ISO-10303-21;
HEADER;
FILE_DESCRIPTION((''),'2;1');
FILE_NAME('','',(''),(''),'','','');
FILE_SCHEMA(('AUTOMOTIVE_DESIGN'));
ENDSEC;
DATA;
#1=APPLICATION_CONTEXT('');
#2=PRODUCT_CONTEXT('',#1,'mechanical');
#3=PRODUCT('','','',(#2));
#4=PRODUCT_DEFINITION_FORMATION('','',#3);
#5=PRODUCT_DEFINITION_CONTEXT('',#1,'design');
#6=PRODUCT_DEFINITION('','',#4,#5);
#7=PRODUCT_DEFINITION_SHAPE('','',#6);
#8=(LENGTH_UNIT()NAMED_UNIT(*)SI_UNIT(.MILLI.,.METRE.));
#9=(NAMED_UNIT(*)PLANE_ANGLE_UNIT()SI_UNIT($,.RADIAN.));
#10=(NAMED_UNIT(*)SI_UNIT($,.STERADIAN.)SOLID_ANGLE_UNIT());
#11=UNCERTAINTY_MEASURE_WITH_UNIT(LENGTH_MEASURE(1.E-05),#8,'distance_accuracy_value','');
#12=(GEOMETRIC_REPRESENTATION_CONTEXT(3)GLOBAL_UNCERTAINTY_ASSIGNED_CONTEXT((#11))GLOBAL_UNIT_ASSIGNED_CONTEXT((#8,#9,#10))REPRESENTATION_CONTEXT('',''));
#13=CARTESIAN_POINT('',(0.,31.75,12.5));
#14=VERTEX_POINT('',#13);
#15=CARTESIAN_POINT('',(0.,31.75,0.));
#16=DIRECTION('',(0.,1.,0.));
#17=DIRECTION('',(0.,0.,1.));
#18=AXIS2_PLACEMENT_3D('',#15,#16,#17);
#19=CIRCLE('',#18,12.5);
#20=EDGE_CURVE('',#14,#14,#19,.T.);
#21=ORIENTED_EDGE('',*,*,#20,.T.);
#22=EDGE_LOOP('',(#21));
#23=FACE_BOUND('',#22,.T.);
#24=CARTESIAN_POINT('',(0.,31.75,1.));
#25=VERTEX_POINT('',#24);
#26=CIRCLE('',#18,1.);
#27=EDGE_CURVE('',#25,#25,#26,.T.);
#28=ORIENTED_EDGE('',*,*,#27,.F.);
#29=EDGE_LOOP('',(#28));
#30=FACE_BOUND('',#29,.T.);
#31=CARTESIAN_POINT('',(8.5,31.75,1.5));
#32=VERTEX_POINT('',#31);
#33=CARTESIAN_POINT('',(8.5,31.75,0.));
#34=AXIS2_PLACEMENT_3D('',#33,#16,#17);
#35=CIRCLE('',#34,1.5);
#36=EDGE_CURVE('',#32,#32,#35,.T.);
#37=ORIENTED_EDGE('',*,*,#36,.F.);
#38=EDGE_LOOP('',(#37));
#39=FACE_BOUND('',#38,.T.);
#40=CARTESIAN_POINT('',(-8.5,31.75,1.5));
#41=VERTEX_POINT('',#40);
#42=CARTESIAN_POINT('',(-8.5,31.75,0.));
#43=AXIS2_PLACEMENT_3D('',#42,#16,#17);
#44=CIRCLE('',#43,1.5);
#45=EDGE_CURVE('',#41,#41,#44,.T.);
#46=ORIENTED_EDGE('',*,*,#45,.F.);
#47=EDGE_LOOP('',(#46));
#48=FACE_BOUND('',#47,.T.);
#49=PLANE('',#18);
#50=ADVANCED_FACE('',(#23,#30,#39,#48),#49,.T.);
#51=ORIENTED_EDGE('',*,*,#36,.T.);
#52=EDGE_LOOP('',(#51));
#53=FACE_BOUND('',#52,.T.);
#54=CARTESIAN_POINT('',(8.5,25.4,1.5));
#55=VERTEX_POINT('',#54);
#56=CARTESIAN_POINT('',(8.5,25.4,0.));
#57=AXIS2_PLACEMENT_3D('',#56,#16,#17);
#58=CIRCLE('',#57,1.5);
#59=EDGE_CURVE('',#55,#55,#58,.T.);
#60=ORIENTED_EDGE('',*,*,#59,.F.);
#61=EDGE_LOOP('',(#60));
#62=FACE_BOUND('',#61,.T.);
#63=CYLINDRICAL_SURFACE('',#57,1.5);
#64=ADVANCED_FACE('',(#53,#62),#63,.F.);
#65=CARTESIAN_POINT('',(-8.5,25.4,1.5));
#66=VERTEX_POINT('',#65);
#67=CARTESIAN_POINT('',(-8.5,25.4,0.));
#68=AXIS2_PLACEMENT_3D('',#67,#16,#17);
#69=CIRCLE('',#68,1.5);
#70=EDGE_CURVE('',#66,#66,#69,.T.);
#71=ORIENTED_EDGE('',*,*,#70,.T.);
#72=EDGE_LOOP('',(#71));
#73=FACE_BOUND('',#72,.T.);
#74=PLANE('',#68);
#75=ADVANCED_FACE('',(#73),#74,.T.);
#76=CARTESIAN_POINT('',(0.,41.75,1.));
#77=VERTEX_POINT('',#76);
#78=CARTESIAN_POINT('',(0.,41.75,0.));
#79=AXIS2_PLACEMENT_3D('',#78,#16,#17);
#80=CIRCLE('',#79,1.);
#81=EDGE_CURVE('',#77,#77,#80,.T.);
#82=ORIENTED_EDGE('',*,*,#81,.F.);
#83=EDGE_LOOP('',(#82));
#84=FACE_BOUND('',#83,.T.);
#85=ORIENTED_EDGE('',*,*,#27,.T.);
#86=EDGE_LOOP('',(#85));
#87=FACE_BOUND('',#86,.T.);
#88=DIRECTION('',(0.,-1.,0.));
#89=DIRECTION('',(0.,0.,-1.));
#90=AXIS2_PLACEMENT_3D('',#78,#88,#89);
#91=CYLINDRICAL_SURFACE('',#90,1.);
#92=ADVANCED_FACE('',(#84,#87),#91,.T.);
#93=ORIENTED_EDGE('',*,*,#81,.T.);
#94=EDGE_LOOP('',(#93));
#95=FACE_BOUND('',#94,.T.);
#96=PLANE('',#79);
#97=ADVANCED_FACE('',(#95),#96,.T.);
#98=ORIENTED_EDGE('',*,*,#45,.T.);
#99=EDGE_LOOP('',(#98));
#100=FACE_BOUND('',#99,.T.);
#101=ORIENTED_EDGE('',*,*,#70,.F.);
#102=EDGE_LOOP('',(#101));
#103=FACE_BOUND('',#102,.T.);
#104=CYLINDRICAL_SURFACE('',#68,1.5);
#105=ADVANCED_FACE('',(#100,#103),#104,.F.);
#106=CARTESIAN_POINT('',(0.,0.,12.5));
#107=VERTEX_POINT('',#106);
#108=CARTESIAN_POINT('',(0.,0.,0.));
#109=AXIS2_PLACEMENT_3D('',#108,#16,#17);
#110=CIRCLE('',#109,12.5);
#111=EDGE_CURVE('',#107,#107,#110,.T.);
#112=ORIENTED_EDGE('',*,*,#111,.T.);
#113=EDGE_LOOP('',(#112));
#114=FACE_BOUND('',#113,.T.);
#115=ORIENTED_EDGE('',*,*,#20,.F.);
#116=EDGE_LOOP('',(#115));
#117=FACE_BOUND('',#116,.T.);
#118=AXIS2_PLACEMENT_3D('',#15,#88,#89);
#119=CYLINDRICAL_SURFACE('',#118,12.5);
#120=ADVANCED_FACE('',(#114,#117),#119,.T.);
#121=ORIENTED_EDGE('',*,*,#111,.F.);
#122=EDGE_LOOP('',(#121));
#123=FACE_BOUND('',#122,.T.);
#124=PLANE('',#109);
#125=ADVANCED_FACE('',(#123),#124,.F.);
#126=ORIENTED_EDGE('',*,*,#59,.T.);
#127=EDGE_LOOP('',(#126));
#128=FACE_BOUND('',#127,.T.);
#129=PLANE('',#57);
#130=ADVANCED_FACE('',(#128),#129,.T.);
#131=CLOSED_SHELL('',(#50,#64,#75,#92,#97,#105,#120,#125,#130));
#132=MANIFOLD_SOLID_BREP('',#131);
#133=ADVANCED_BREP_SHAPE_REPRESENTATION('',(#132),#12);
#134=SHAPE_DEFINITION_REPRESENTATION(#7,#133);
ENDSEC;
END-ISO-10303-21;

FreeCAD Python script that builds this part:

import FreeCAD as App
import Part
import Sketcher
from FreeCAD import Vector
Q = App.Units.Quantity

doc = App.newDocument("Part")
body = doc.addObject("PartDesign::Body", "Body")

# Sketch on XZ plane
sketch1 = body.newObject("Sketcher::SketchObject", "Sketch")
sketch1.AttachmentSupport = (doc.getObject("XZ_Plane"), [""])
sketch1.MapMode = "FlatFace"
sketch1.addGeometry(Part.Circle(Vector(0, 0, 0), Vector(0, 0, 1), 12), False)
sketch1.addConstraint(Sketcher.Constraint("Coincident", 0, 3, -1, 1))
sketch1.addConstraint(Sketcher.Constraint("Diameter", 0, Q("25 mm")))
pad1 = body.newObject("PartDesign::Pad", "Pad")
pad1.Profile = sketch1
pad1.Length = 31.75
pad1.Reversed = True

# Sketch on XZ plane
sketch2 = body.newObject("Sketcher::SketchObject", "Sketch001")
sketch2.AttachmentSupport = (doc.getObject("XZ_Plane"), [""])
sketch2.MapMode = "FlatFace"
sketch2.AttachmentOffset = App.Placement(Vector(0, 0, -31.75), App.Rotation())
sketch2.addGeometry(Part.Circle(Vector(0, 0, 0), Vector(0, 0, 1), 1), False)
sketch2.addConstraint(Sketcher.Constraint("Coincident", 0, 3, -1, 1))
sketch2.addConstraint(Sketcher.Constraint("Diameter", 0, Q("2 mm")))
pad2 = body.newObject("PartDesign::Pad", "Pad001")
pad2.Profile = sketch2
pad2.Length = 10
pad2.Reversed = True

# Sketch on XZ plane
sketch3 = body.newObject("Sketcher::SketchObject", "Sketch002")
sketch3.AttachmentSupport = (doc.getObject("XZ_Plane"), [""])
sketch3.MapMode = "FlatFace"
sketch3.AttachmentOffset = App.Placement(Vector(0, 0, -31.75), App.Rotation())
sketch3.addGeometry(Part.Circle(Vector(-8.5, 0, 0), Vector(0, 0, 1), 1.5), False)
sketch3.addGeometry(Part.Circle(Vector(8.5, 0, 0), Vector(0, 0, 1), 1.5), False)
sketch3.addConstraint(Sketcher.Constraint("Equal", 0, 1))
sketch3.addConstraint(Sketcher.Constraint("Symmetric", 0, 3, 1, 3, -1, 1))
sketch3.addConstraint(Sketcher.Constraint("PointOnObject", 0, 3, -1))
sketch3.addConstraint(Sketcher.Constraint("Diameter", 0, Q("3 mm")))
sketch3.addConstraint(Sketcher.Constraint("DistanceX", 0, 3, 1, 3, Q("17 mm")))
pocket1 = body.newObject("PartDesign::Pocket", "Pocket")
pocket1.Profile = sketch3
pocket1.Length = 6.35
pocket1.Reversed = True

doc.recompute()
